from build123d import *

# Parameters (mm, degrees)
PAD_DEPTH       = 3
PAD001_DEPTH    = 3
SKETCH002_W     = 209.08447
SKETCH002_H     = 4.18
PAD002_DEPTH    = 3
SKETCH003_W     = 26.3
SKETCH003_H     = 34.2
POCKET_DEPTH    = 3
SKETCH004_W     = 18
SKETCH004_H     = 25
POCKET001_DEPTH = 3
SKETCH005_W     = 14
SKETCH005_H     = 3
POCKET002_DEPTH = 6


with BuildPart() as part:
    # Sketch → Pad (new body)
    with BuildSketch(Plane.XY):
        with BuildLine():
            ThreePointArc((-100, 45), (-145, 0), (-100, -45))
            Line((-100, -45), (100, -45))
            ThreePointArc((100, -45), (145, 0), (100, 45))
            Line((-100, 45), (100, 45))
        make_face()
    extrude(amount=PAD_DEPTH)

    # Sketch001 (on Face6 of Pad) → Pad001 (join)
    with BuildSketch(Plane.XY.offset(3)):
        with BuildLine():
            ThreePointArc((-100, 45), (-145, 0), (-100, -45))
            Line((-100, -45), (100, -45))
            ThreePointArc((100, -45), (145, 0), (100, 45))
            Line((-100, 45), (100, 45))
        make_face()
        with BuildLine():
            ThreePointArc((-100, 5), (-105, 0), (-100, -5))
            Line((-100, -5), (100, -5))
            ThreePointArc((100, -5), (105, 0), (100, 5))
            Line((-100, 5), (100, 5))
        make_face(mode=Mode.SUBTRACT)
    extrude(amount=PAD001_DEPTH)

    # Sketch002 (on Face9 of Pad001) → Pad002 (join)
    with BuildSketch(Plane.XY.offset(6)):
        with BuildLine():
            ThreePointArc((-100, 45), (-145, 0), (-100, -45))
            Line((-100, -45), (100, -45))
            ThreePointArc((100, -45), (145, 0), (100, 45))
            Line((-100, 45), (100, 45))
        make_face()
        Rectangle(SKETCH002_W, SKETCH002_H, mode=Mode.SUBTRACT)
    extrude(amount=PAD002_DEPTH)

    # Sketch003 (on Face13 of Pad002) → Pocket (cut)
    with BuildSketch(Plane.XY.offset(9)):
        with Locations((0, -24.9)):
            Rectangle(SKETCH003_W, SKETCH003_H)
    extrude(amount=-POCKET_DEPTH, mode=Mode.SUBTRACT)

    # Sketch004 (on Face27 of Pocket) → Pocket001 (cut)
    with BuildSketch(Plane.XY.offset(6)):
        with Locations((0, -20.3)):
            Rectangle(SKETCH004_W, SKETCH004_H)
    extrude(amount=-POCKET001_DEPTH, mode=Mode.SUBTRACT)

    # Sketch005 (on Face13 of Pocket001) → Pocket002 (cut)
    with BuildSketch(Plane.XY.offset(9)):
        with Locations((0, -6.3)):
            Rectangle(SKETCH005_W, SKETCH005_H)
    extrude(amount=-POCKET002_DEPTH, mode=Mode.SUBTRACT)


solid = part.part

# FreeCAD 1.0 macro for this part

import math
import FreeCAD as App
import Part
import Sketcher
Q = App.Units.Quantity

doc = App.newDocument("Part")
body = doc.addObject("PartDesign::Body", "Body")

sketch1 = doc.addObject("Sketcher::SketchObject", "Sketch")
body.addObject(sketch1)
sketch1.AttachmentSupport = (doc.XY_Plane, [""])
sketch1.MapMode = "FlatFace"
sketch1.addGeometry([
    Part.ArcOfCircle(Part.Circle(App.Vector(-100, 0, 0), App.Vector(0, 0, 1), 45), math.radians(90), math.radians(270)),
    Part.LineSegment(App.Vector(-100, -45, 0), App.Vector(100, -45, 0)),
    Part.ArcOfCircle(Part.Circle(App.Vector(100, 0, 0), App.Vector(0, 0, 1), 45), math.radians(-90), math.radians(90)),
    Part.LineSegment(App.Vector(100, 45, 0), App.Vector(-100, 45, 0)),
], False)
sketch1.addConstraint([
    Sketcher.Constraint("Tangent", 0, 2, 1, 1),
    Sketcher.Constraint("Tangent", 1, 2, 2, 1),
    Sketcher.Constraint("Tangent", 2, 2, 3, 1),
    Sketcher.Constraint("Tangent", 3, 2, 0, 1),
    Sketcher.Constraint("Horizontal", 1),
    Sketcher.Constraint("Horizontal", 3),
    Sketcher.Constraint("Symmetric", 0, 3, 2, 3, -1, 1),
    Sketcher.Constraint("Radius", 0, Q("45 mm")),
    Sketcher.Constraint("DistanceX", 1, 1, 1, 2, Q("200 mm")),
])
pad1 = doc.addObject("PartDesign::Pad", "Pad")
body.addObject(pad1)
pad1.Profile = sketch1
pad1.Length = 3

sketch2 = doc.addObject("Sketcher::SketchObject", "Sketch001")
body.addObject(sketch2)
sketch2.AttachmentSupport = (doc.XY_Plane, [""])
sketch2.MapMode = "FlatFace"
sketch2.AttachmentOffset = App.Placement(App.Vector(0, 0, 3), App.Rotation())
sketch2.addGeometry([
    Part.ArcOfCircle(Part.Circle(App.Vector(-100, 0, 0), App.Vector(0, 0, 1), 45), math.radians(90), math.radians(270)),
    Part.LineSegment(App.Vector(-100, -45, 0), App.Vector(100, -45, 0)),
    Part.ArcOfCircle(Part.Circle(App.Vector(100, 0, 0), App.Vector(0, 0, 1), 45), math.radians(-90), math.radians(90)),
    Part.LineSegment(App.Vector(100, 45, 0), App.Vector(-100, 45, 0)),
    Part.ArcOfCircle(Part.Circle(App.Vector(-100, 0, 0), App.Vector(0, 0, 1), 5), math.radians(90), math.radians(270)),
    Part.LineSegment(App.Vector(-100, 5, 0), App.Vector(100, 5, 0)),
    Part.ArcOfCircle(Part.Circle(App.Vector(100, 0, 0), App.Vector(0, 0, 1), 5), math.radians(-90), math.radians(90)),
    Part.LineSegment(App.Vector(100, -5, 0), App.Vector(-100, -5, 0)),
], False)
sketch2.addConstraint([
    Sketcher.Constraint("Tangent", 0, 2, 1, 1),
    Sketcher.Constraint("Tangent", 1, 2, 2, 1),
    Sketcher.Constraint("Tangent", 2, 2, 3, 1),
    Sketcher.Constraint("Tangent", 3, 2, 0, 1),
    Sketcher.Constraint("Tangent", 4, 1, 5, 1),
    Sketcher.Constraint("Tangent", 5, 2, 6, 2),
    Sketcher.Constraint("Tangent", 6, 1, 7, 1),
    Sketcher.Constraint("Tangent", 7, 2, 4, 2),
    Sketcher.Constraint("Horizontal", 1),
    Sketcher.Constraint("Horizontal", 3),
    Sketcher.Constraint("Horizontal", 5),
    Sketcher.Constraint("Horizontal", 7),
    Sketcher.Constraint("Coincident", 4, 3, 0, 3),
    Sketcher.Constraint("Symmetric", 0, 3, 2, 3, -1, 1),
    Sketcher.Constraint("Vertical", 6, 3, 1, 2),
    Sketcher.Constraint("Radius", 0, Q("45 mm")),
    Sketcher.Constraint("Radius", 4, Q("5 mm")),
    Sketcher.Constraint("DistanceX", 1, 1, 1, 2, Q("200 mm")),
])
pad2 = doc.addObject("PartDesign::Pad", "Pad001")
body.addObject(pad2)
pad2.Profile = sketch2
pad2.Length = 3

sketch3 = doc.addObject("Sketcher::SketchObject", "Sketch002")
body.addObject(sketch3)
sketch3.AttachmentSupport = (doc.XY_Plane, [""])
sketch3.MapMode = "FlatFace"
sketch3.AttachmentOffset = App.Placement(App.Vector(0, 0, 6), App.Rotation())
sketch3.addGeometry([
    Part.ArcOfCircle(Part.Circle(App.Vector(-100, 0, 0), App.Vector(0, 0, 1), 45), math.radians(90), math.radians(270)),
    Part.LineSegment(App.Vector(-100, -45, 0), App.Vector(100, -45, 0)),
    Part.ArcOfCircle(Part.Circle(App.Vector(100, 0, 0), App.Vector(0, 0, 1), 45), math.radians(-90), math.radians(90)),
    Part.LineSegment(App.Vector(100, 45, 0), App.Vector(-100, 45, 0)),
    Part.LineSegment(App.Vector(104.5, -2.1, 0), App.Vector(-104.5, -2.1, 0)),
    Part.LineSegment(App.Vector(-104.5, -2.1, 0), App.Vector(-104.5, 2.1, 0)),
    Part.LineSegment(App.Vector(-104.5, 2.1, 0), App.Vector(104.5, 2.1, 0)),
    Part.LineSegment(App.Vector(104.5, 2.1, 0), App.Vector(104.5, -2.1, 0)),
], False)
sketch3.addConstraint([
    Sketcher.Constraint("Tangent", 0, 2, 1, 1),
    Sketcher.Constraint("Tangent", 1, 2, 2, 1),
    Sketcher.Constraint("Tangent", 2, 2, 3, 1),
    Sketcher.Constraint("Tangent", 3, 2, 0, 1),
    Sketcher.Constraint("Coincident", 4, 2, 5, 1),
    Sketcher.Constraint("Coincident", 5, 2, 6, 1),
    Sketcher.Constraint("Coincident", 6, 2, 7, 1),
    Sketcher.Constraint("Coincident", 7, 2, 4, 1),
    Sketcher.Constraint("Horizontal", 1),
    Sketcher.Constraint("Horizontal", 3),
    Sketcher.Constraint("Horizontal", 4),
    Sketcher.Constraint("Vertical", 5),
    Sketcher.Constraint("Horizontal", 6),
    Sketcher.Constraint("Vertical", 7),
    Sketcher.Constraint("Symmetric", 0, 3, 2, 3, -1, 1),
    Sketcher.Constraint("Symmetric", 4, 2, 6, 2, -1, 1),
    Sketcher.Constraint("Radius", 0, Q("45 mm")),
    Sketcher.Constraint("DistanceX", 1, 1, 1, 2, Q("200 mm")),
    Sketcher.Constraint("DistanceY", 5, 1, 5, 2, Q("4.18 mm")),
    Sketcher.Constraint("DistanceX", 4, 2, 4, 1, Q("209.08447 mm")),
])
pad3 = doc.addObject("PartDesign::Pad", "Pad002")
body.addObject(pad3)
pad3.Profile = sketch3
pad3.Length = 3

sketch4 = doc.addObject("Sketcher::SketchObject", "Sketch003")
body.addObject(sketch4)
sketch4.AttachmentSupport = (doc.XY_Plane, [""])
sketch4.MapMode = "FlatFace"
sketch4.AttachmentOffset = App.Placement(App.Vector(0, 0, 9), App.Rotation())
sketch4.addGeometry([
    Part.LineSegment(App.Vector(-13, -8, 0), App.Vector(-13, -42, 0)),
    Part.LineSegment(App.Vector(-13, -42, 0), App.Vector(13, -42, 0)),
    Part.LineSegment(App.Vector(13, -42, 0), App.Vector(13, -8, 0)),
    Part.LineSegment(App.Vector(13, -8, 0), App.Vector(-13, -8, 0)),
], False)
sketch4.addConstraint([
    Sketcher.Constraint("Coincident", 0, 2, 1, 1),
    Sketcher.Constraint("Coincident", 1, 2, 2, 1),
    Sketcher.Constraint("Coincident", 2, 2, 3, 1),
    Sketcher.Constraint("Coincident", 3, 2, 0, 1),
    Sketcher.Constraint("Vertical", 0),
    Sketcher.Constraint("Horizontal", 1),
    Sketcher.Constraint("Vertical", 2),
    Sketcher.Constraint("Horizontal", 3),
    Sketcher.Constraint("DistanceX", 1, 1, 1, 2, Q("26.3 mm")),
    Sketcher.Constraint("DistanceY", 0, 2, 0, 1, Q("34.2 mm")),
    Sketcher.Constraint("DistanceY", 0, 2, -1, 1, Q("42 mm")),
    Sketcher.Constraint("DistanceX", 0, 2, -1, 1, Q("13.15 mm")),
])
pocket1 = doc.addObject("PartDesign::Pocket", "Pocket")
body.addObject(pocket1)
pocket1.Profile = sketch4
pocket1.Length = 3

sketch5 = doc.addObject("Sketcher::SketchObject", "Sketch004")
body.addObject(sketch5)
sketch5.AttachmentSupport = (doc.XY_Plane, [""])
sketch5.MapMode = "FlatFace"
sketch5.AttachmentOffset = App.Placement(App.Vector(0, 0, 6), App.Rotation())
sketch5.addGeometry([
    Part.LineSegment(App.Vector(-9, -8, 0), App.Vector(-9, -33, 0)),
    Part.LineSegment(App.Vector(-9, -33, 0), App.Vector(9, -33, 0)),
    Part.LineSegment(App.Vector(9, -33, 0), App.Vector(9, -8, 0)),
    Part.LineSegment(App.Vector(9, -8, 0), App.Vector(-9, -8, 0)),
], False)
sketch5.addConstraint([
    Sketcher.Constraint("Coincident", 0, 2, 1, 1),
    Sketcher.Constraint("Coincident", 1, 2, 2, 1),
    Sketcher.Constraint("Coincident", 2, 2, 3, 1),
    Sketcher.Constraint("Coincident", 3, 2, 0, 1),
    Sketcher.Constraint("Vertical", 0),
    Sketcher.Constraint("Horizontal", 1),
    Sketcher.Constraint("Vertical", 2),
    Sketcher.Constraint("Horizontal", 3),
    Sketcher.Constraint("DistanceX", 1, 1, 1, 2, Q("18 mm")),
    Sketcher.Constraint("DistanceY", 0, 2, 0, 1, Q("25 mm")),
    Sketcher.Constraint("DistanceX", 0, 2, -1, 1, Q("9 mm")),
    Sketcher.Constraint("DistanceY", 0, 2, -1, 1, Q("32.8 mm")),
])
pocket2 = doc.addObject("PartDesign::Pocket", "Pocket001")
body.addObject(pocket2)
pocket2.Profile = sketch5
pocket2.Length = 3

sketch6 = doc.addObject("Sketcher::SketchObject", "Sketch005")
body.addObject(sketch6)
sketch6.AttachmentSupport = (doc.XY_Plane, [""])
sketch6.MapMode = "FlatFace"
sketch6.AttachmentOffset = App.Placement(App.Vector(0, 0, 9), App.Rotation())
sketch6.addGeometry([
    Part.LineSegment(App.Vector(-7, -4.8, 0), App.Vector(-7, -7.8, 0)),
    Part.LineSegment(App.Vector(-7, -7.8, 0), App.Vector(7, -7.8, 0)),
    Part.LineSegment(App.Vector(7, -7.8, 0), App.Vector(7, -4.8, 0)),
    Part.LineSegment(App.Vector(7, -4.8, 0), App.Vector(-7, -4.8, 0)),
], False)
sketch6.addConstraint([
    Sketcher.Constraint("Coincident", 0, 2, 1, 1),
    Sketcher.Constraint("Coincident", 1, 2, 2, 1),
    Sketcher.Constraint("Coincident", 2, 2, 3, 1),
    Sketcher.Constraint("Coincident", 3, 2, 0, 1),
    Sketcher.Constraint("Vertical", 0),
    Sketcher.Constraint("Horizontal", 1),
    Sketcher.Constraint("Vertical", 2),
    Sketcher.Constraint("Horizontal", 3),
    Sketcher.Constraint("DistanceX", 1, 1, 1, 2, Q("14 mm")),
    Sketcher.Constraint("DistanceY", 0, 2, 0, 1, Q("3 mm")),
    Sketcher.Constraint("DistanceX", 0, 2, -1, 1, Q("7 mm")),
    Sketcher.Constraint("DistanceY", 0, 2, -1, 1, Q("7.8 mm")),
])
pocket3 = doc.addObject("PartDesign::Pocket", "Pocket002")
body.addObject(pocket3)
pocket3.Profile = sketch6
pocket3.Length = 6

doc.recompute()
